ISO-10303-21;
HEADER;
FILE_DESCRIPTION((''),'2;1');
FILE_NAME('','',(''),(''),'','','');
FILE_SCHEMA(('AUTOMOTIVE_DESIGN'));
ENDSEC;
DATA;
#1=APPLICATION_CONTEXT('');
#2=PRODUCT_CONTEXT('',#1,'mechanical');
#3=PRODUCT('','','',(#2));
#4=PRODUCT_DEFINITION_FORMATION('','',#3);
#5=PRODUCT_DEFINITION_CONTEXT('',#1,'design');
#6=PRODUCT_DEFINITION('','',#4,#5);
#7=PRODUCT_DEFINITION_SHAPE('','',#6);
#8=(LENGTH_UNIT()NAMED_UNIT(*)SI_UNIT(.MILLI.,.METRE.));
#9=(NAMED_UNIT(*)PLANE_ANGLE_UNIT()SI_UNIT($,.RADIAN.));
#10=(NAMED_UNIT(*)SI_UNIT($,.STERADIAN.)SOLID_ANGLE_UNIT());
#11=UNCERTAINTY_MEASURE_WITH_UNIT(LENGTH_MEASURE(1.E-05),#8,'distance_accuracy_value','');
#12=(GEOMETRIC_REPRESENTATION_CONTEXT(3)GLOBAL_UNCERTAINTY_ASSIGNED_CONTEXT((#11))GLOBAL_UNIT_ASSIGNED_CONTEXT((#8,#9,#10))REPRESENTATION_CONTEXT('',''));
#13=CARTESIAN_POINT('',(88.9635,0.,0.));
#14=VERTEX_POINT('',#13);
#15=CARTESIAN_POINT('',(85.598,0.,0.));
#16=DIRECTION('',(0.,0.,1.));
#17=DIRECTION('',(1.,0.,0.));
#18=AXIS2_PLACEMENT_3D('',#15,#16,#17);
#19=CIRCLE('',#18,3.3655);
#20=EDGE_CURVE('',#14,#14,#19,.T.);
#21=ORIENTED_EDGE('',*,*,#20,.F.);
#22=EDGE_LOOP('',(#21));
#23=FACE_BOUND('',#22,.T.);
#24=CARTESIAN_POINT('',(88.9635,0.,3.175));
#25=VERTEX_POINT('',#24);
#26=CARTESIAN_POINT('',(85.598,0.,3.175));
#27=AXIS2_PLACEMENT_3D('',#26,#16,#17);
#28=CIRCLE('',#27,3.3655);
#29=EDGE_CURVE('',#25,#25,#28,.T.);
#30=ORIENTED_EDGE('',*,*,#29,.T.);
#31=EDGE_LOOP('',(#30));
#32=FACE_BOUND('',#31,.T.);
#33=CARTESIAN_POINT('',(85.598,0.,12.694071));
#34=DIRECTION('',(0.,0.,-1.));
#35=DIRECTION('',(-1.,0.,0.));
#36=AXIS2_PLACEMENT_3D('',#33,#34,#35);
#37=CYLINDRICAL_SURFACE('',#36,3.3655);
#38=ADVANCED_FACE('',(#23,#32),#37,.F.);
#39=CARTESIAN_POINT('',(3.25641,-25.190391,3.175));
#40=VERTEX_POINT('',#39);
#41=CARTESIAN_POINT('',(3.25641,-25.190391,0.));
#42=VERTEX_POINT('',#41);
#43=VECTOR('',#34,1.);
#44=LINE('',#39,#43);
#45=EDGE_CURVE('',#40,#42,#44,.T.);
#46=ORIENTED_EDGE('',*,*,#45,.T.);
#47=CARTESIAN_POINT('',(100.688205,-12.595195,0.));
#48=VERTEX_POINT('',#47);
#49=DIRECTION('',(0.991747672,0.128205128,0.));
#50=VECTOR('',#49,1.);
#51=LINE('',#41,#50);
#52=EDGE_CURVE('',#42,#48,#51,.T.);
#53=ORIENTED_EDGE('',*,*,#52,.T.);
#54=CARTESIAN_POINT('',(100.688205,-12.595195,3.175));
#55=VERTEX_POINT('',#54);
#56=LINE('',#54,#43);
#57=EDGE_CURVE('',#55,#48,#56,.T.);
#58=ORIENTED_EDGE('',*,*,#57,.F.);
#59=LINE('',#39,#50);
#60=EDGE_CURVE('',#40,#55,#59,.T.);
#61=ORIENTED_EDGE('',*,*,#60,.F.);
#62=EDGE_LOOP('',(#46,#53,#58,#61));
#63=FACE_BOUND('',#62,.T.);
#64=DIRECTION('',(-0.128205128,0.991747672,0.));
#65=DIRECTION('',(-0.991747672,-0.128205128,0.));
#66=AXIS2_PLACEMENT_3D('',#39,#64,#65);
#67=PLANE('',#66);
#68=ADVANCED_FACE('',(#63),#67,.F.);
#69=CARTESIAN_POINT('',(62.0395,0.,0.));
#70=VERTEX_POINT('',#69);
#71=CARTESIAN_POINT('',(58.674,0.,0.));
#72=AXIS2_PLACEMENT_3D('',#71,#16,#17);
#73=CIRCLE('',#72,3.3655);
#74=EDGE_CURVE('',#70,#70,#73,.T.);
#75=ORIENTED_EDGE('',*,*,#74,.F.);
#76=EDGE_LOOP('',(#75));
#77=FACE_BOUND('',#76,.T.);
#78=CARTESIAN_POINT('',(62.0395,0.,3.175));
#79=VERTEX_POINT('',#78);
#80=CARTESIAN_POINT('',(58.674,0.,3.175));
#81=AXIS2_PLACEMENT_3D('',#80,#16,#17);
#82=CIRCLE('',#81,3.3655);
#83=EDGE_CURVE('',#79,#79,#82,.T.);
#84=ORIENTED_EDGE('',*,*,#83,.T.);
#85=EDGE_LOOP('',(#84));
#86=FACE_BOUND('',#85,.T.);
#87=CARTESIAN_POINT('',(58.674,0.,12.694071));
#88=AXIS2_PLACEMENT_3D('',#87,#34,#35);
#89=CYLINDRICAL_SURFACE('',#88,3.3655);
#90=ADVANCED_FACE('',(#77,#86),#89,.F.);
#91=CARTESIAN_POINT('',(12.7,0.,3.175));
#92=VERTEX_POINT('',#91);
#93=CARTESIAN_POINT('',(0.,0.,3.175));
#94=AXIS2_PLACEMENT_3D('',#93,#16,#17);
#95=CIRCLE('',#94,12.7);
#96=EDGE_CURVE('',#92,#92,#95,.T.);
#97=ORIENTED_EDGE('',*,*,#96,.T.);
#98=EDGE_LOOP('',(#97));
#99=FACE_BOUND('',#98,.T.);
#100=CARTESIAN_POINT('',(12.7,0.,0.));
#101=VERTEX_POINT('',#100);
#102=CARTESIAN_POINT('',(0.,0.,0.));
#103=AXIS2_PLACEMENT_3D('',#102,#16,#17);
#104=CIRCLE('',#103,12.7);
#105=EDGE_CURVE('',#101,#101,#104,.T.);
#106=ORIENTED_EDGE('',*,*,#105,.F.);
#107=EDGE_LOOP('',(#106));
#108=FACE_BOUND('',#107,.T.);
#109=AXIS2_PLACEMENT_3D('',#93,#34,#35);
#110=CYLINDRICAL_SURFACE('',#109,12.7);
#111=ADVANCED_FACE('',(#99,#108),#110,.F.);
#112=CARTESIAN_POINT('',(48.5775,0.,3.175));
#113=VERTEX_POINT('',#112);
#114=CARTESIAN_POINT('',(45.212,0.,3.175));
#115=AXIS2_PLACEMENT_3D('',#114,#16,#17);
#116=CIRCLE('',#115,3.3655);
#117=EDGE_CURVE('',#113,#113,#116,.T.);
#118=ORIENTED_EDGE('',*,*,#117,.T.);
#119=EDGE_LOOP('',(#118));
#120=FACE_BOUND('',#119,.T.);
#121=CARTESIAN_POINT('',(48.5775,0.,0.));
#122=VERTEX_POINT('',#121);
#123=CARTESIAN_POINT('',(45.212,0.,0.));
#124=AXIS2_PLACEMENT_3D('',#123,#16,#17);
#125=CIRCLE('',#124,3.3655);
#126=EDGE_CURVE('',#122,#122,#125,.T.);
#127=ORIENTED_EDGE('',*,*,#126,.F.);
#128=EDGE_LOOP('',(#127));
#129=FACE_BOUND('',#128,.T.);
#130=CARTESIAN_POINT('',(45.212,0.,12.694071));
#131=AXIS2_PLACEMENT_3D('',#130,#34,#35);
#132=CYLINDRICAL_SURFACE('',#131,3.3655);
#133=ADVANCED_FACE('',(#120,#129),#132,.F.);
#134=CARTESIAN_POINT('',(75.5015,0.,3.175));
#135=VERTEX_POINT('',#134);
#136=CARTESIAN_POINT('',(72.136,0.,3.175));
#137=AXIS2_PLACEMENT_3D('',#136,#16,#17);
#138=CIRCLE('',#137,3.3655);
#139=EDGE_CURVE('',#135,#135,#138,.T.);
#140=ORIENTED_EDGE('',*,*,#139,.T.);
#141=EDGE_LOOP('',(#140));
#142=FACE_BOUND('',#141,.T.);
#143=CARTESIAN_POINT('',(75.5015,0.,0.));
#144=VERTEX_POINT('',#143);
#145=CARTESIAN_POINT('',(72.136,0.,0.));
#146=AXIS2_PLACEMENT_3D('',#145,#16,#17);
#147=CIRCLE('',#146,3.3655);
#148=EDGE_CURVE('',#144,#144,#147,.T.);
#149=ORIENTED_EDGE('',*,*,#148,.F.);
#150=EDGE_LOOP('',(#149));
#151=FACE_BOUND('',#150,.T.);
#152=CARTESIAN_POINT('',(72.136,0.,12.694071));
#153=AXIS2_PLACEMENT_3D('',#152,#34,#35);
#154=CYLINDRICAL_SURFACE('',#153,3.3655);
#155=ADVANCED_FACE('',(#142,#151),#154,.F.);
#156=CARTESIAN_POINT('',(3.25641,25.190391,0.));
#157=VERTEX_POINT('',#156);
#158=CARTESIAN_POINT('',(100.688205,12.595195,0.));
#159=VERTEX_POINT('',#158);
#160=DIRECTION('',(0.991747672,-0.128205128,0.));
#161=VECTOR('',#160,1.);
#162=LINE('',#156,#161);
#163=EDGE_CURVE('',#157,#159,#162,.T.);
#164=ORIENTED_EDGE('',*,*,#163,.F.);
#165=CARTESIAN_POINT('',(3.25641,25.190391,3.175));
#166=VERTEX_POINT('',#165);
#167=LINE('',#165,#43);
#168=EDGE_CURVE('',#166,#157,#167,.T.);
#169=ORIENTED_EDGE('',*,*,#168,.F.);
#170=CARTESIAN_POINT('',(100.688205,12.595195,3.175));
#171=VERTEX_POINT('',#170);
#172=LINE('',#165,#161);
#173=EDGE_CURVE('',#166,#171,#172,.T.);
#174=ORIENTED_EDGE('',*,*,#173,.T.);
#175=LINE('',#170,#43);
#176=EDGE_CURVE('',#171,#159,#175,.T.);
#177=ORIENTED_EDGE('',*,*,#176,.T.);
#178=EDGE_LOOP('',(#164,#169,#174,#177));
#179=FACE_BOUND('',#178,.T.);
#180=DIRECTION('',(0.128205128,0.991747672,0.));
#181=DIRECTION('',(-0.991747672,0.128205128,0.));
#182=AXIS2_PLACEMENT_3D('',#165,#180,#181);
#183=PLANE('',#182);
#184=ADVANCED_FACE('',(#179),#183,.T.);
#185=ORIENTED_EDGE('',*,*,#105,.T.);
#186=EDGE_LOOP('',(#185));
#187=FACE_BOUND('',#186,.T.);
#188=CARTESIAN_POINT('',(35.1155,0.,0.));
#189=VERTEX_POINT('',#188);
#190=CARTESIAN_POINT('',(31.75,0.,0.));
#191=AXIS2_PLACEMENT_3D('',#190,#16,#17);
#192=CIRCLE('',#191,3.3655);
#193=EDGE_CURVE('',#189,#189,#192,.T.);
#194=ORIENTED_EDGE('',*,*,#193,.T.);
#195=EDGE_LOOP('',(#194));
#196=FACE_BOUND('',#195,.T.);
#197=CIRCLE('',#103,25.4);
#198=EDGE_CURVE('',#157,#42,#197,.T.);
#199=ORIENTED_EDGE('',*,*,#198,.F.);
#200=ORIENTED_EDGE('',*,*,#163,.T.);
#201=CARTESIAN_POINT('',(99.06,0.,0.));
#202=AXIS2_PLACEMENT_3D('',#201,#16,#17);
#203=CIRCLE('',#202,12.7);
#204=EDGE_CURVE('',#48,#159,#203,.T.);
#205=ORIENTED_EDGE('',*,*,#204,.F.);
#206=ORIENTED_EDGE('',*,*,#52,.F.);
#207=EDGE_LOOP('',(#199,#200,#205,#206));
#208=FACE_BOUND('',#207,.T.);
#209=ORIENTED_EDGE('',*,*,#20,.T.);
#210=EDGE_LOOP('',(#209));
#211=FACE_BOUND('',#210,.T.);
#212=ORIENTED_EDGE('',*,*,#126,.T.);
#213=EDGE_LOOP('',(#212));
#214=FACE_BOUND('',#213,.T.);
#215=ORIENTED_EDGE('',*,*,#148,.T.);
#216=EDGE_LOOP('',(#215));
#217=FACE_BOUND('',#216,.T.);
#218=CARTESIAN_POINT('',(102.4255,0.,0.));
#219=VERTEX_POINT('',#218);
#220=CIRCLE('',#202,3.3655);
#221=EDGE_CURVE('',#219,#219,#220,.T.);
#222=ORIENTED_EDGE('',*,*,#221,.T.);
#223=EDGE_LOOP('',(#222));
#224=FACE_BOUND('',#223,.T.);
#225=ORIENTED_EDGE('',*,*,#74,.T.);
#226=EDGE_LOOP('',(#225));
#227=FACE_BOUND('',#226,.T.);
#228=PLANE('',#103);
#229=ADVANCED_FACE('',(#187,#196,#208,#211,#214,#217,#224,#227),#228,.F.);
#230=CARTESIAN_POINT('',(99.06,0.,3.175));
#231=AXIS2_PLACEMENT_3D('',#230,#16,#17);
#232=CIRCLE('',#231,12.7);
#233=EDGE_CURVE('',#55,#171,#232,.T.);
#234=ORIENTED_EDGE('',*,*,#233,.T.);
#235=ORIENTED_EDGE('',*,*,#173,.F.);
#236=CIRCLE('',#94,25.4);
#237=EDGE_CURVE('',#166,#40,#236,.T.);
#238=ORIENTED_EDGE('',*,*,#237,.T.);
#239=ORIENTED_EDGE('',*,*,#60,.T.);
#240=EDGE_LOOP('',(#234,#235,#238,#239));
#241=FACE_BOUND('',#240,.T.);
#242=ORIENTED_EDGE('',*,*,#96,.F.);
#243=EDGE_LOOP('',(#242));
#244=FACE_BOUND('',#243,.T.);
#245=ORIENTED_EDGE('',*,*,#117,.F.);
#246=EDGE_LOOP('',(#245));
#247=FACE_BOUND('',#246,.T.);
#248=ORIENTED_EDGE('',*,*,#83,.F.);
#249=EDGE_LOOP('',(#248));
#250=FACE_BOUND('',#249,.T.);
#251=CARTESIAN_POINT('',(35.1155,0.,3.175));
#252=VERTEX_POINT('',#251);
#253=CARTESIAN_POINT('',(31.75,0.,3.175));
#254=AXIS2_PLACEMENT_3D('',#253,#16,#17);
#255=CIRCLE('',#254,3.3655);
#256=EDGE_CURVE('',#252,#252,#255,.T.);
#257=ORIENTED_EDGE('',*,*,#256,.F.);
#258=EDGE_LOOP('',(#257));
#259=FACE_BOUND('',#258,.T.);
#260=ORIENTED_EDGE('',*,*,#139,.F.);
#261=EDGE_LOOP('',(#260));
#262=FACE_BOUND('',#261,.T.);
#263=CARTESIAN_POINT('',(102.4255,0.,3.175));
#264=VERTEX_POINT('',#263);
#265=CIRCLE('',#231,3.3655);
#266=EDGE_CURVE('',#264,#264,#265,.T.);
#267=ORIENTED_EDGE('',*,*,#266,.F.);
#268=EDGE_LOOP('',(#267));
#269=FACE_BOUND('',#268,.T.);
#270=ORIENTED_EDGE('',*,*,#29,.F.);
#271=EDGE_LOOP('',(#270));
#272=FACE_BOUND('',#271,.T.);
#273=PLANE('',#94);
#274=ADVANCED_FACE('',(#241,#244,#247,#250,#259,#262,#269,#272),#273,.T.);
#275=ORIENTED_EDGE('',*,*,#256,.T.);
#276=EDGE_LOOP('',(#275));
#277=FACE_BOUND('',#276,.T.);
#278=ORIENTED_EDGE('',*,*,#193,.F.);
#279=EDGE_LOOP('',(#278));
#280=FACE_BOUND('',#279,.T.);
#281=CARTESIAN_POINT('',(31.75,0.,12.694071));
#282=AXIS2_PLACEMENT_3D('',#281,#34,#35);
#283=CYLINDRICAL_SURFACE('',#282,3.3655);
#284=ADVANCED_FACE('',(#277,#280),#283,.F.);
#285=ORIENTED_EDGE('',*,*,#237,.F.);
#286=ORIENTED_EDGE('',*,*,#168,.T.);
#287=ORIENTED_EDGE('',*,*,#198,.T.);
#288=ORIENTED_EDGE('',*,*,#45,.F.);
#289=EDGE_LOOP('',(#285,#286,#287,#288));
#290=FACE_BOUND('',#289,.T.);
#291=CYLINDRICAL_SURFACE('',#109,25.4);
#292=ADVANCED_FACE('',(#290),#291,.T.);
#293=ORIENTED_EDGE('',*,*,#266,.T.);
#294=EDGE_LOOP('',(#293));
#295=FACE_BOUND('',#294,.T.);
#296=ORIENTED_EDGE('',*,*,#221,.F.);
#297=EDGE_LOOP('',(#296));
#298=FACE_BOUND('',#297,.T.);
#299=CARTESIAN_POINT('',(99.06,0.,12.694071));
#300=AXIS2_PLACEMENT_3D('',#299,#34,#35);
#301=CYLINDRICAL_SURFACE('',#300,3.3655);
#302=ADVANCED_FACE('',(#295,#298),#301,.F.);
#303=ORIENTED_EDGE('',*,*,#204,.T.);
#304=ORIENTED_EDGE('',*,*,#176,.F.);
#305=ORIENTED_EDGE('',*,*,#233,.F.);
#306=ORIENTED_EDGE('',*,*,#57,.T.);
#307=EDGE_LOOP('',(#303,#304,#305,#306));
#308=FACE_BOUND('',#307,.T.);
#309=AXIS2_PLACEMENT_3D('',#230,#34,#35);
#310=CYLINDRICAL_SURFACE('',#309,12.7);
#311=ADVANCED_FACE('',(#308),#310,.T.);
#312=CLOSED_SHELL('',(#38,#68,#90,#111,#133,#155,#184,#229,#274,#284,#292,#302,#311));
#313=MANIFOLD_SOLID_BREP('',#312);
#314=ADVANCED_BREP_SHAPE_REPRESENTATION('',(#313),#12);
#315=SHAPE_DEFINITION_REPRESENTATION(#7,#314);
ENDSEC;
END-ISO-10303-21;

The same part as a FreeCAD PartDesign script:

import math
import FreeCAD as App
import Part
import Sketcher
from FreeCAD import Vector
Q = App.Units.Quantity

doc = App.newDocument("Part")
body = doc.addObject("PartDesign::Body", "Body")

sketch1 = doc.addObject("Sketcher::SketchObject", "Sketch")
body.addObject(sketch1)
sketch1.AttachmentSupport = (doc.XY_Plane, [""])
sketch1.MapMode = "FlatFace"
sketch1.addGeometry([
    Part.ArcOfCircle(Part.Circle(Vector(0, 0, 0), Vector(0, 0, 1), 25), math.radians(83), math.radians(277)),
    Part.LineSegment(Vector(3, -25, 0), Vector(101, -13, 0)),
    Part.ArcOfCircle(Part.Circle(Vector(99, 0, 0), Vector(0, 0, 1), 13), math.radians(-83), math.radians(83)),
    Part.LineSegment(Vector(101, 13, 0), Vector(3, 25, 0)),
    Part.Circle(Vector(0, 0, 0), Vector(0, 0, 1), 13),
], False)
sketch1.addConstraint([
    Sketcher.Constraint("Tangent", 0, 2, 1, 1),
    Sketcher.Constraint("Tangent", 1, 2, 2, 1),
    Sketcher.Constraint("Tangent", 2, 2, 3, 1),
    Sketcher.Constraint("Tangent", 3, 2, 0, 1),
    Sketcher.Constraint("Coincident", 0, 3, -1, 1),
    Sketcher.Constraint("Coincident", 4, 3, -1, 1),
    Sketcher.Constraint("Equal", 2, 4),
    Sketcher.Constraint("PointOnObject", 2, 3, -1),
    Sketcher.Constraint("Diameter", 4, Q("1 in")),
    Sketcher.Constraint("Radius", 0, Q("1 in")),
    Sketcher.Constraint("DistanceX", -1, 1, 2, 3, Q("3.9 in")),
])
pad1 = doc.addObject("PartDesign::Pad", "Pad")
body.addObject(pad1)
pad1.Profile = sketch1
pad1.Length = Q("0.125 in")

sketch2 = doc.addObject("Sketcher::SketchObject", "Sketch001")
body.addObject(sketch2)
sketch2.AttachmentSupport = (doc.XY_Plane, [""])
sketch2.MapMode = "FlatFace"
sketch2.addGeometry([
    Part.Circle(Vector(99.1, 0, 0), Vector(0, 0, 1), 3.4),
    Part.Circle(Vector(85.6, 0, 0), Vector(0, 0, 1), 3.4),
    Part.Circle(Vector(72.1, 0, 0), Vector(0, 0, 1), 3.4),
    Part.Circle(Vector(58.7, 0, 0), Vector(0, 0, 1), 3.4),
    Part.Circle(Vector(45.2, 0, 0), Vector(0, 0, 1), 3.4),
    Part.Circle(Vector(31.8, 0, 0), Vector(0, 0, 1), 3.4),
], False)
sketch2.addConstraint([
    Sketcher.Constraint("Equal", 0, 1),
    Sketcher.Constraint("Equal", 1, 2),
    Sketcher.Constraint("Equal", 2, 3),
    Sketcher.Constraint("Equal", 3, 4),
    Sketcher.Constraint("Equal", 4, 5),
    Sketcher.Constraint("PointOnObject", 0, 3, -1),
    Sketcher.Constraint("PointOnObject", 1, 3, -1),
    Sketcher.Constraint("PointOnObject", 2, 3, -1),
    Sketcher.Constraint("PointOnObject", 3, 3, -1),
    Sketcher.Constraint("PointOnObject", 4, 3, -1),
    Sketcher.Constraint("PointOnObject", 5, 3, -1),
    Sketcher.Constraint("Diameter", 0, Q("0.265 in")),
    Sketcher.Constraint("DistanceX", -1, 1, 0, 3, Q("3.9 in")),
    Sketcher.Constraint("DistanceX", -1, 1, 1, 3, Q("3.37 in")),
    Sketcher.Constraint("DistanceX", -1, 1, 2, 3, Q("2.84 in")),
    Sketcher.Constraint("DistanceX", -1, 1, 3, 3, Q("2.31 in")),
    Sketcher.Constraint("DistanceX", -1, 1, 4, 3, Q("1.78 in")),
    Sketcher.Constraint("DistanceX", -1, 1, 5, 3, Q("1.25 in")),
])
pocket1 = doc.addObject("PartDesign::Pocket", "Pocket")
body.addObject(pocket1)
pocket1.Profile = sketch2
pocket1.Length = Q("0.125 in")
pocket1.Reversed = True

doc.recompute()
